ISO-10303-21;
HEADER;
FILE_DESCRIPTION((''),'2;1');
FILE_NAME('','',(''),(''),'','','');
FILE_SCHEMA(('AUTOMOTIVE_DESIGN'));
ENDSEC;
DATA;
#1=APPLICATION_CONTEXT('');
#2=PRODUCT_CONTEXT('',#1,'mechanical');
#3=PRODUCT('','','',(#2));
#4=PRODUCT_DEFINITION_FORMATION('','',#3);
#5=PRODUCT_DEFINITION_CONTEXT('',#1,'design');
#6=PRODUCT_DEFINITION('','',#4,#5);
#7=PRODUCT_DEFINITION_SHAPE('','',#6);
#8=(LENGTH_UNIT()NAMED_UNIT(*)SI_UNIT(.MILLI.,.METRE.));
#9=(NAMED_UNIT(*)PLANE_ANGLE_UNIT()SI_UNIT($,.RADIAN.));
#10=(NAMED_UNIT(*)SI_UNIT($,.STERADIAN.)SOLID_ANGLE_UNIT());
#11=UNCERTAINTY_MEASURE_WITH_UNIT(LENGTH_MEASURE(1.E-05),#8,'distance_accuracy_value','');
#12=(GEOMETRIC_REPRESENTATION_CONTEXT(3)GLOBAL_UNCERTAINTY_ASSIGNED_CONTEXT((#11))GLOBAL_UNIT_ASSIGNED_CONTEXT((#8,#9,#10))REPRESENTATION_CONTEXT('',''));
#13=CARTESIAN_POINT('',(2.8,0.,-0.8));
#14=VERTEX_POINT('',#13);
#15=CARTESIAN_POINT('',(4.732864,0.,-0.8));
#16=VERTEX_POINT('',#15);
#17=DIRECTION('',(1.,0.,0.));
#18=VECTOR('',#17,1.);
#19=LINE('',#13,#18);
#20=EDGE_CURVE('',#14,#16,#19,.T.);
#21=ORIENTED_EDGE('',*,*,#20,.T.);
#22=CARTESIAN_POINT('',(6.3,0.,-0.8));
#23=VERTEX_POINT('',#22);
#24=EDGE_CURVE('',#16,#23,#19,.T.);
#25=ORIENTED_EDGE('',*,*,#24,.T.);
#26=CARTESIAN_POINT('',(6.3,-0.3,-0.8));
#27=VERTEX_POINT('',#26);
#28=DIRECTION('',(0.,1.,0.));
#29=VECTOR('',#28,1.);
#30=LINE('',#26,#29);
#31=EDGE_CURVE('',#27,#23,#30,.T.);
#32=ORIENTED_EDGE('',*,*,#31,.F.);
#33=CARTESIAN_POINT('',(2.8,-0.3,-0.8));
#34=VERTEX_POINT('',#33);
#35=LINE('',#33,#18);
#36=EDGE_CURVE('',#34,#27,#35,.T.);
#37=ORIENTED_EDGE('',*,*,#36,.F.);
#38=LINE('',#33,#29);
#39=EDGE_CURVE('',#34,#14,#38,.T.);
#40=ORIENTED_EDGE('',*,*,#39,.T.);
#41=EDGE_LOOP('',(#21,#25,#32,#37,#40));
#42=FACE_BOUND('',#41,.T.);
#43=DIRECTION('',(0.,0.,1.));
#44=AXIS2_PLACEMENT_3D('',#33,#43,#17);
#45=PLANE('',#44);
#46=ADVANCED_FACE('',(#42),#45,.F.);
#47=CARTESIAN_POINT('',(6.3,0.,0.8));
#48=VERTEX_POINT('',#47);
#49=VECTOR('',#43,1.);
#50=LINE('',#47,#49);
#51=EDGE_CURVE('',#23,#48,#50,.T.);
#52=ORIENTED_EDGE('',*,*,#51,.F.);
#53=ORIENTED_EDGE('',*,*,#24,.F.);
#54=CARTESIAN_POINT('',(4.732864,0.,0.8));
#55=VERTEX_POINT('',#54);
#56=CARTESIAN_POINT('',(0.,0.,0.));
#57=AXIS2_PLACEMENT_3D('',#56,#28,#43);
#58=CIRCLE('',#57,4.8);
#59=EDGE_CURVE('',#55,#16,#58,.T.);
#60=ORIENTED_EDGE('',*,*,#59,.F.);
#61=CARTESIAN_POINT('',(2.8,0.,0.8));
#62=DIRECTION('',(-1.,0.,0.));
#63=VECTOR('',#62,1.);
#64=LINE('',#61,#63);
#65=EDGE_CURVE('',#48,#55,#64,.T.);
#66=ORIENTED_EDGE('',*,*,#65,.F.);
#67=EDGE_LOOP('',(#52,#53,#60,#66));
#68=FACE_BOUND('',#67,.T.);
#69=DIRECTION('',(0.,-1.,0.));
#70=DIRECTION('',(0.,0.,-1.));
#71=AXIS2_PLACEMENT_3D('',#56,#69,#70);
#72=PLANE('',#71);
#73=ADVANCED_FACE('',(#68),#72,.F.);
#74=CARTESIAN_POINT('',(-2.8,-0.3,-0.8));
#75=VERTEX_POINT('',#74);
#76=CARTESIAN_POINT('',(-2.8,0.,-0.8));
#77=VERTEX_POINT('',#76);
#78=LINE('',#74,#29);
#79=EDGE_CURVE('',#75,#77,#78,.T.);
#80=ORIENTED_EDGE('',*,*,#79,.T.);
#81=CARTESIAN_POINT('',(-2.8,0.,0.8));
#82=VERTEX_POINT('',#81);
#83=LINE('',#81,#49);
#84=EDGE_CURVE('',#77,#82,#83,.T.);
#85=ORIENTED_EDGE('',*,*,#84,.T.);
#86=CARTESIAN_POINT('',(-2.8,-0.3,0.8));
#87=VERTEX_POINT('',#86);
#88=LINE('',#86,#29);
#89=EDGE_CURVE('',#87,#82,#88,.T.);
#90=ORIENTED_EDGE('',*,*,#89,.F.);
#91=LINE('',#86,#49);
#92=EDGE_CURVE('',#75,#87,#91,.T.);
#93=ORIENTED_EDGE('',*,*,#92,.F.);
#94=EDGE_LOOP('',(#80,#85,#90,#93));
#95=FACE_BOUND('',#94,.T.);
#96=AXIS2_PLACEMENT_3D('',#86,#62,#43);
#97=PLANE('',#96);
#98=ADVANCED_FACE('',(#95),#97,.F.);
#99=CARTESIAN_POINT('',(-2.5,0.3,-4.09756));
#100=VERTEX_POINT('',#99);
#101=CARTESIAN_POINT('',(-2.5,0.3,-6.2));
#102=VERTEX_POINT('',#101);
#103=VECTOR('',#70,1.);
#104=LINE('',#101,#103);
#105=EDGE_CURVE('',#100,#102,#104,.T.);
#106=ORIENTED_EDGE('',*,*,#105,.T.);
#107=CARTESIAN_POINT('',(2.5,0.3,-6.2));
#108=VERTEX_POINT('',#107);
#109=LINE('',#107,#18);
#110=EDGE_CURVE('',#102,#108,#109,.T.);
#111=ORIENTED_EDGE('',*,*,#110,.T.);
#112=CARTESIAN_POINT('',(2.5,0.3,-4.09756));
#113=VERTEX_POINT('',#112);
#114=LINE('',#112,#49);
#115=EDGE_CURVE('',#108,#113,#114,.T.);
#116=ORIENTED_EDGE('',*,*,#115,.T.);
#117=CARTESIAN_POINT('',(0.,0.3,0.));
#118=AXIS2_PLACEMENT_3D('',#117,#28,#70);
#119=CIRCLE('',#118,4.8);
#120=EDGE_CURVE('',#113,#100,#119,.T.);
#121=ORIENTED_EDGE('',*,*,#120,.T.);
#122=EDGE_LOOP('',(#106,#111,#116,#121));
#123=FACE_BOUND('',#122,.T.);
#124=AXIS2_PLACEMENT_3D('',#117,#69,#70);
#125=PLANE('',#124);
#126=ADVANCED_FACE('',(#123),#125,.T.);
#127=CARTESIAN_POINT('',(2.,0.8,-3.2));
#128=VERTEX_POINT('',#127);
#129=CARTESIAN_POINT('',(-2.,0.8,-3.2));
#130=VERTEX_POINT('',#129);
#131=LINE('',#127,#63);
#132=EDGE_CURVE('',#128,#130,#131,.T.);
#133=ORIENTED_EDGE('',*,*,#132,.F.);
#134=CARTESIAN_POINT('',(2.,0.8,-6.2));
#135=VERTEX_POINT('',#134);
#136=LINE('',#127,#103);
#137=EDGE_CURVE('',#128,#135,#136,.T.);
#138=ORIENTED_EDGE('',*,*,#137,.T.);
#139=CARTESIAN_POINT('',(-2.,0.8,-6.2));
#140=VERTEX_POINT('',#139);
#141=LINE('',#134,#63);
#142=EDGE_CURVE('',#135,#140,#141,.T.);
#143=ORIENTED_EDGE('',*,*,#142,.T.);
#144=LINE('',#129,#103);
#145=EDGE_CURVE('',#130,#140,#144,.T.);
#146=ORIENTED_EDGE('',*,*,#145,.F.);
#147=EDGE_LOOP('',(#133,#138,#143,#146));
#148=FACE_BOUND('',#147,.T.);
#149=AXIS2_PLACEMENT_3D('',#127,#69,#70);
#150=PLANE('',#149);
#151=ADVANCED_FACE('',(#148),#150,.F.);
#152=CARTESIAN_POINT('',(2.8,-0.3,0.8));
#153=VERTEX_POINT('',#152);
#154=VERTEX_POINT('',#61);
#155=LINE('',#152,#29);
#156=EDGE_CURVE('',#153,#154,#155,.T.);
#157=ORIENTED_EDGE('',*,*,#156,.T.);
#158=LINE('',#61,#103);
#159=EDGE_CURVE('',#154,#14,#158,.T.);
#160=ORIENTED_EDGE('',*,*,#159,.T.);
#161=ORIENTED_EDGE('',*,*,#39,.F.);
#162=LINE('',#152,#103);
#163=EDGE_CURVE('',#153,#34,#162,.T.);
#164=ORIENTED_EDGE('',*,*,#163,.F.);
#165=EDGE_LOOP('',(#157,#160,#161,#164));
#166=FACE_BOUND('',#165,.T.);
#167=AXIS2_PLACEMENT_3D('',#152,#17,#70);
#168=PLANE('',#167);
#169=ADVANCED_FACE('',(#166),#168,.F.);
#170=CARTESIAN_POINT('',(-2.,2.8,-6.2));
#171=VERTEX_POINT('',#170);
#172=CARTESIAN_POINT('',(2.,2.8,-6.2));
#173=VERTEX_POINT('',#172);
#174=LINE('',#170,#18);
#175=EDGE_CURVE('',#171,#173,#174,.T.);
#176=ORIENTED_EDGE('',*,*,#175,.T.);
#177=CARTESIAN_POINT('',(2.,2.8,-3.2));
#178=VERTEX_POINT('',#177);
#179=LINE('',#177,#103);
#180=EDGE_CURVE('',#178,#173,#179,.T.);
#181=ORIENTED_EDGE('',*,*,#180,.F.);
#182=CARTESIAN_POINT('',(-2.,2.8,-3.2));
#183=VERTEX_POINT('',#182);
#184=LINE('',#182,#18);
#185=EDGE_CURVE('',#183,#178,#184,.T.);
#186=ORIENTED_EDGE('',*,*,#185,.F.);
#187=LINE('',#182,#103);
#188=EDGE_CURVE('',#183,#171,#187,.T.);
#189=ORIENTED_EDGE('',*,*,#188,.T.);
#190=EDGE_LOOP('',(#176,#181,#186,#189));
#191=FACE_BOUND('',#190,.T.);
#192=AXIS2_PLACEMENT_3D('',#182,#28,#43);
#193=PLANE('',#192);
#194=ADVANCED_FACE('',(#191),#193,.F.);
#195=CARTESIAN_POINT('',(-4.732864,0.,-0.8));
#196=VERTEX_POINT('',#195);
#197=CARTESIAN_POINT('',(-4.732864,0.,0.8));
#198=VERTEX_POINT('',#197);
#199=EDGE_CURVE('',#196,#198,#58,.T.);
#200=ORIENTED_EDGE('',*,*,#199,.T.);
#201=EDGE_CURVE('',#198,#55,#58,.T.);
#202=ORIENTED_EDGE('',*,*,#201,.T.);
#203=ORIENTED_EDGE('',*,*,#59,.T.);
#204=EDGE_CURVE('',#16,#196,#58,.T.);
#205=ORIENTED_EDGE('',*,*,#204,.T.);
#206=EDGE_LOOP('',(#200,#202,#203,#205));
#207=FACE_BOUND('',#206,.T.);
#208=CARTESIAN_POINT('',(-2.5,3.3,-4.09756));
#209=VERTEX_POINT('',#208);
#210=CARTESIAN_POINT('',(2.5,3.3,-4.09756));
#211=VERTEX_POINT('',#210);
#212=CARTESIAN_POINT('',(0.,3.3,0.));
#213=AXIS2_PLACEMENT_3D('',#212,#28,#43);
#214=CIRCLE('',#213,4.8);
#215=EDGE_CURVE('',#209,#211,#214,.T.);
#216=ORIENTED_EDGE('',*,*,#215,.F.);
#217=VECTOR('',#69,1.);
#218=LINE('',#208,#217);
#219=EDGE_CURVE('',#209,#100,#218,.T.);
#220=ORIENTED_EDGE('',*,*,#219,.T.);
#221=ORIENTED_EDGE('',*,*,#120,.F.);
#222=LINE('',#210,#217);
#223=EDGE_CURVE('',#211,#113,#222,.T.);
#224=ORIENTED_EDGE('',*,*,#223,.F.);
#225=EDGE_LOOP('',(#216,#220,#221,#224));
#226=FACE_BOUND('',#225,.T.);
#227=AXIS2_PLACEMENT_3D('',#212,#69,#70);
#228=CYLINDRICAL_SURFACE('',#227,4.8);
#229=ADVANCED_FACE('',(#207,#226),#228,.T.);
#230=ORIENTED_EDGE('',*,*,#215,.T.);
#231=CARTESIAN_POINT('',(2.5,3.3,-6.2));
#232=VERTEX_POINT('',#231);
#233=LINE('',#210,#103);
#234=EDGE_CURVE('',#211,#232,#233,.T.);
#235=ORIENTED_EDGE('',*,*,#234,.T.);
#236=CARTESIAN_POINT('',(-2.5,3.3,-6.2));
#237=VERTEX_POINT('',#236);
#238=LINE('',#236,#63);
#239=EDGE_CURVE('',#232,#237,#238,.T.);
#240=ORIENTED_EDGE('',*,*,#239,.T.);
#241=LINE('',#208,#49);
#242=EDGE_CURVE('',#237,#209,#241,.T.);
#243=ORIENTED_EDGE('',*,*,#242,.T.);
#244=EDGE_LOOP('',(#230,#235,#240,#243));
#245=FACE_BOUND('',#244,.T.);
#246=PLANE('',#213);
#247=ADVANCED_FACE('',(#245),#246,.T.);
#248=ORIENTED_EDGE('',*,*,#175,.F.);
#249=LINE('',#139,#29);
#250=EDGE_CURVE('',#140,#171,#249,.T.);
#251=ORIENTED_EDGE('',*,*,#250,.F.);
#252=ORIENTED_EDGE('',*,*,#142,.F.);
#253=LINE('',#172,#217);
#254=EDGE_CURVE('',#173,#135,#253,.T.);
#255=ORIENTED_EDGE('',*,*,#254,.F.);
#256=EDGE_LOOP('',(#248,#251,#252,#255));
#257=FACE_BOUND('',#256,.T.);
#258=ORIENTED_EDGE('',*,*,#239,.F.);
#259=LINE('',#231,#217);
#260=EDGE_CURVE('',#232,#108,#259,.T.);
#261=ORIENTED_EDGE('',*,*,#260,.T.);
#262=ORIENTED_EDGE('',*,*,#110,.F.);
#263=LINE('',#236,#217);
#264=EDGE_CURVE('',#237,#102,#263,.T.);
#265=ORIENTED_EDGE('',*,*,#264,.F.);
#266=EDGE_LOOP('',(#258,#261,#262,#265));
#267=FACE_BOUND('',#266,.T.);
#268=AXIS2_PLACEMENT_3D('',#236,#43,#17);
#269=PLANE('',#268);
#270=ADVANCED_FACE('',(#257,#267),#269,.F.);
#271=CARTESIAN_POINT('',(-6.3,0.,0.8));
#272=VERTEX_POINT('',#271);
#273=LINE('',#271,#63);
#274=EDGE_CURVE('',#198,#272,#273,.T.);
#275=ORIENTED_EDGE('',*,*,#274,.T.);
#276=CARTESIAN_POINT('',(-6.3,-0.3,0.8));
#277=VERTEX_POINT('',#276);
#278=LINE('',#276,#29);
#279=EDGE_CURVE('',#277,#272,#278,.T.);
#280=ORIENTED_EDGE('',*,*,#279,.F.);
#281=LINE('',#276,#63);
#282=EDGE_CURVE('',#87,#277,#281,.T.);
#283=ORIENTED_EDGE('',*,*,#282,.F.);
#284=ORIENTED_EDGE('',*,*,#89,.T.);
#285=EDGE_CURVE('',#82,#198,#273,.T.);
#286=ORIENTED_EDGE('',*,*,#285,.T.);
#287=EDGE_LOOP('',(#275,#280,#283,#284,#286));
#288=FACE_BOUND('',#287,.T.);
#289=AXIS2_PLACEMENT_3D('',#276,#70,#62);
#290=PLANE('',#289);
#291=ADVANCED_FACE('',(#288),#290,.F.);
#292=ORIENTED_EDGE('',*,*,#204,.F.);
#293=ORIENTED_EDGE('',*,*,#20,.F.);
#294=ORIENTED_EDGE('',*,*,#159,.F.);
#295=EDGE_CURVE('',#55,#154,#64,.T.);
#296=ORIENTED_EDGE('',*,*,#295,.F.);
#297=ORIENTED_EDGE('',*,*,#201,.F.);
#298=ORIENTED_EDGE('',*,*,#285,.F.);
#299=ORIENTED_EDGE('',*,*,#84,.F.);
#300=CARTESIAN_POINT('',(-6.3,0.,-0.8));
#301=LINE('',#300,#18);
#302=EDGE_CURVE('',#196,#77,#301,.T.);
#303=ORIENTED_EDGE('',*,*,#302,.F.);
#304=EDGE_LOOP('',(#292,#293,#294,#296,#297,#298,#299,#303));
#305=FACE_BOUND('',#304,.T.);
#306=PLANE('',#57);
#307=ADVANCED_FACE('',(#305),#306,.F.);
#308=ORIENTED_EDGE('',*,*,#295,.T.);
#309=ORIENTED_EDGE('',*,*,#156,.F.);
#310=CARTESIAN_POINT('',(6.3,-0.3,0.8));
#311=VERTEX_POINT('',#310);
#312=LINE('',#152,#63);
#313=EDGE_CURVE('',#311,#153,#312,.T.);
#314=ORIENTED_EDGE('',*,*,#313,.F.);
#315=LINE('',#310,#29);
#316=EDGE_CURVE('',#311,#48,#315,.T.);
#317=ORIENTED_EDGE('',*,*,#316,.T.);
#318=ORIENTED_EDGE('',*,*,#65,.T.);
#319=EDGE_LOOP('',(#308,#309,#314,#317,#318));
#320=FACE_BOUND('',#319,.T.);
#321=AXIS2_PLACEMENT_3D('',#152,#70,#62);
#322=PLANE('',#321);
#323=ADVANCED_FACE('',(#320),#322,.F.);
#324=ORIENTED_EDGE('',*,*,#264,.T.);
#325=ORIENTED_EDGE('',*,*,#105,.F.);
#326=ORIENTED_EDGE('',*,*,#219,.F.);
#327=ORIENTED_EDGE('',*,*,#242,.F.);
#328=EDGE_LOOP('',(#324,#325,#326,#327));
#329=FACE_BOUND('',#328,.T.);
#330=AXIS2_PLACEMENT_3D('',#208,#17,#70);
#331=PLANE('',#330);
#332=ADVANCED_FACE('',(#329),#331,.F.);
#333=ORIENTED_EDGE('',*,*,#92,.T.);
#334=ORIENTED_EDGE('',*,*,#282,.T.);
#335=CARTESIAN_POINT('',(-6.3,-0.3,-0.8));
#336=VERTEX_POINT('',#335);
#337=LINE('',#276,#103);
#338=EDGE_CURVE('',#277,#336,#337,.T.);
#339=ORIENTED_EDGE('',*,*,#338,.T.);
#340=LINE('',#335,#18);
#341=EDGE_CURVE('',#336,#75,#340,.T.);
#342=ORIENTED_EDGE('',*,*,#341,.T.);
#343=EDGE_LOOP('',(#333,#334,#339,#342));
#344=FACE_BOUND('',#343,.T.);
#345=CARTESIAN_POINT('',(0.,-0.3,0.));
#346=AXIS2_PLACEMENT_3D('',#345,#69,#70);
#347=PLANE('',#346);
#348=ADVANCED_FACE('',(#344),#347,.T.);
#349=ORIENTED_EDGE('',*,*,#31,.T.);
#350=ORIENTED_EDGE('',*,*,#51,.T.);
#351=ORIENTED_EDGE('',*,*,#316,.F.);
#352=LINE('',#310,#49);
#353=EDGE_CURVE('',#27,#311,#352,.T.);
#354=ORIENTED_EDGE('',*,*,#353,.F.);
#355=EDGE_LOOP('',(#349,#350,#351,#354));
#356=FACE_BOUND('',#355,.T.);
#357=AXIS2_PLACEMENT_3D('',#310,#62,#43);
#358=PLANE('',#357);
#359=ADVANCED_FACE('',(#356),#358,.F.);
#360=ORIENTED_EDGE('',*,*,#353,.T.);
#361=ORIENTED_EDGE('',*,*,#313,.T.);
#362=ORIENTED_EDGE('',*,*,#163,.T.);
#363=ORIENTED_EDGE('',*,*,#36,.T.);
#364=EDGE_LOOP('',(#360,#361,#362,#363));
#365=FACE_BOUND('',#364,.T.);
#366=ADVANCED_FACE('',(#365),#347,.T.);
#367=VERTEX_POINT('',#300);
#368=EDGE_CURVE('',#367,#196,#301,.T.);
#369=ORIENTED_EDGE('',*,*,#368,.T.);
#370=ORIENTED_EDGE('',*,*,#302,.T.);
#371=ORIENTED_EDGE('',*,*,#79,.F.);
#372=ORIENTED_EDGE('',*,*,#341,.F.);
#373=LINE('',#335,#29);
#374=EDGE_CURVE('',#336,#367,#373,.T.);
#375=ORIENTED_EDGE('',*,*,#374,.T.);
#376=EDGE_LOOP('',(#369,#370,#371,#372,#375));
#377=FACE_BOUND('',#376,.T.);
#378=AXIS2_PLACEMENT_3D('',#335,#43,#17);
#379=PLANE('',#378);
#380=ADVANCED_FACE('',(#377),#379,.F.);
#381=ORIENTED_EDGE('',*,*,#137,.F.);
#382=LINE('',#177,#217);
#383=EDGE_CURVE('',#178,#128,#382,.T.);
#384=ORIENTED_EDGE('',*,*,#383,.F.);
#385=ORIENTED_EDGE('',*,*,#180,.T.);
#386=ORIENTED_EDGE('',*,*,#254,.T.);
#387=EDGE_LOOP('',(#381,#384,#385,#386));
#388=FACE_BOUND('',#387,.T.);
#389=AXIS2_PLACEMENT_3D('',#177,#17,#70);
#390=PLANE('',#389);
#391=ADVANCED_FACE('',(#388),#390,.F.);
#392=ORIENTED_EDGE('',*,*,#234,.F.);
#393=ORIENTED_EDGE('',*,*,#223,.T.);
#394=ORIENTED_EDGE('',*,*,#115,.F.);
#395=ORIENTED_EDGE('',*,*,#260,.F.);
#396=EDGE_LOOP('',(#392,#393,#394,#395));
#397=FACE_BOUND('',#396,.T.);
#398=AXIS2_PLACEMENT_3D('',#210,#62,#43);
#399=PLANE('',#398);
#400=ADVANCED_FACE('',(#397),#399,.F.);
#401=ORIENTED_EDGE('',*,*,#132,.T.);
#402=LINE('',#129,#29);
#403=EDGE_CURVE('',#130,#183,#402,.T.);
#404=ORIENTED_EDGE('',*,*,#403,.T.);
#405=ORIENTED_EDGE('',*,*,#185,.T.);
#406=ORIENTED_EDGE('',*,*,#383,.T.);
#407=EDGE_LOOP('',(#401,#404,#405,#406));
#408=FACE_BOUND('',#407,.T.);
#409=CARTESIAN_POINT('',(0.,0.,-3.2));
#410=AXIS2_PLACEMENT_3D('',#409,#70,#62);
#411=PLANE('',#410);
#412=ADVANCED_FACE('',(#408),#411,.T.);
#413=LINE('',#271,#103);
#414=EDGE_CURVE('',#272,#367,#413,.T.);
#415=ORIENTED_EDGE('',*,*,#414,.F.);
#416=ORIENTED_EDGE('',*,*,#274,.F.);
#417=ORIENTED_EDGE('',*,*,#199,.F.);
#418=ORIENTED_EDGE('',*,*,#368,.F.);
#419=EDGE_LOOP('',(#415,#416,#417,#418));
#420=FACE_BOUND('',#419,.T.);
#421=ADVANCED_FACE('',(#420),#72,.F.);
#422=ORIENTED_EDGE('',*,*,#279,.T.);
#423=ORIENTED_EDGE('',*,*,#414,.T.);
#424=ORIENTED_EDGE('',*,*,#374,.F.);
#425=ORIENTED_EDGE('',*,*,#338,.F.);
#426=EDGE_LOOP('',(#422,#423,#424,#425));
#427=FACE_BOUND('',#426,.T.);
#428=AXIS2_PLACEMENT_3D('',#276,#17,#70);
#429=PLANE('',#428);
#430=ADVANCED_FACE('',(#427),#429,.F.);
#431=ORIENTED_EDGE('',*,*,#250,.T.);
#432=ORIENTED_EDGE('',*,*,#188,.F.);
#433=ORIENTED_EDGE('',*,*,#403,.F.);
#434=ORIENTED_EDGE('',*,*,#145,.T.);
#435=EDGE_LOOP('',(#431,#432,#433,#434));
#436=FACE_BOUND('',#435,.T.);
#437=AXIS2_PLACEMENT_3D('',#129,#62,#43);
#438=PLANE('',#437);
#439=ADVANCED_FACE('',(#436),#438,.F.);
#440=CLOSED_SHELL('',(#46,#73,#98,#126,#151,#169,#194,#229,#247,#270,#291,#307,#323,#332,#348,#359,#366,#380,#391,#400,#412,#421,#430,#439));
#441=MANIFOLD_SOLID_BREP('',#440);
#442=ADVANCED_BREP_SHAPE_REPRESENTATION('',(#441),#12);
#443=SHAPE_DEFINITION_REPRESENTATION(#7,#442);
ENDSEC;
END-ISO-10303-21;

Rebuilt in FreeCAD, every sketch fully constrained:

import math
import FreeCAD as App
import Part
import Sketcher
from FreeCAD import Vector
Q = App.Units.Quantity

doc = App.newDocument("Part")
body = doc.addObject("PartDesign::Body", "Body")

# Sketch on XZ plane
sketch1 = body.newObject("Sketcher::SketchObject", "Sketch")
sketch1.AttachmentSupport = (doc.getObject("XZ_Plane"), [""])
sketch1.MapMode = "FlatFace"
sketch1.addGeometry([
    Part.LineSegment(Vector(-2.5, -6.2, 0), Vector(-2.5, -4.1, 0)),
    Part.ArcOfCircle(Part.Circle(Vector(0, 0, 0), Vector(0, 0, 1), 4.8), math.radians(-59), math.radians(239)),
    Part.LineSegment(Vector(2.5, -4.1, 0), Vector(2.5, -6.2, 0)),
    Part.LineSegment(Vector(2.5, -6.2, 0), Vector(-2.5, -6.2, 0)),
], False)
sketch1.addConstraint([
    Sketcher.Constraint("Coincident", 0, 2, 1, 2),
    Sketcher.Constraint("Coincident", 1, 1, 2, 1),
    Sketcher.Constraint("Coincident", 2, 2, 3, 1),
    Sketcher.Constraint("Coincident", 3, 2, 0, 1),
    Sketcher.Constraint("Vertical", 0),
    Sketcher.Constraint("Vertical", 2),
    Sketcher.Constraint("Horizontal", 3),
    Sketcher.Constraint("Coincident", 1, 3, -1, 1),
    Sketcher.Constraint("Horizontal", 0, 2, 1, 1),
    Sketcher.Constraint("Radius", 1, Q("4.8 mm")),
    Sketcher.Constraint("DistanceX", 3, 2, 3, 1, Q("5 mm")),
    Sketcher.Constraint("DistanceY", 2, 2, -1, 1, Q("6.2 mm")),
])
pad1 = body.newObject("PartDesign::Pad", "Pad")
pad1.Profile = sketch1
pad1.Length = 3.3
pad1.Reversed = True

# Sketch on XZ plane
sketch2 = body.newObject("Sketcher::SketchObject", "Sketch001")
sketch2.AttachmentSupport = (doc.getObject("XZ_Plane"), [""])
sketch2.MapMode = "FlatFace"
sketch2.addGeometry([
    Part.LineSegment(Vector(-6.3, 0.8, 0), Vector(-6.3, -0.8, 0)),  # 0
    Part.LineSegment(Vector(-6.3, -0.8, 0), Vector(-2.8, -0.8, 0)),  # 1
    Part.LineSegment(Vector(-2.8, -0.8, 0), Vector(-2.8, 0.8, 0)),  # 2
    Part.LineSegment(Vector(-2.8, 0.8, 0), Vector(-6.3, 0.8, 0)),  # 3
    Part.LineSegment(Vector(2.8, 0.8, 0), Vector(2.8, -0.8, 0)),  # 4
    Part.LineSegment(Vector(2.8, -0.8, 0), Vector(6.3, -0.8, 0)),  # 5
    Part.LineSegment(Vector(6.3, -0.8, 0), Vector(6.3, 0.8, 0)),  # 6
    Part.LineSegment(Vector(6.3, 0.8, 0), Vector(2.8, 0.8, 0)),  # 7
], False)
sketch2.addConstraint([
    Sketcher.Constraint("Coincident", 0, 2, 1, 1),
    Sketcher.Constraint("Coincident", 1, 2, 2, 1),
    Sketcher.Constraint("Coincident", 2, 2, 3, 1),
    Sketcher.Constraint("Coincident", 3, 2, 0, 1),
    Sketcher.Constraint("Coincident", 4, 2, 5, 1),
    Sketcher.Constraint("Coincident", 5, 2, 6, 1),
    Sketcher.Constraint("Coincident", 6, 2, 7, 1),
    Sketcher.Constraint("Coincident", 7, 2, 4, 1),
    Sketcher.Constraint("Vertical", 0),
    Sketcher.Constraint("Horizontal", 1),
    Sketcher.Constraint("Vertical", 2),
    Sketcher.Constraint("Horizontal", 3),
    Sketcher.Constraint("Vertical", 4),
    Sketcher.Constraint("Horizontal", 5),
    Sketcher.Constraint("Vertical", 6),
    Sketcher.Constraint("Horizontal", 7),
    Sketcher.Constraint("Symmetric", 2, 2, 4, 2, -1, 1),
    Sketcher.Constraint("Symmetric", 0, 2, 6, 2, -1, 1),
    Sketcher.Constraint("Horizontal", 1, 2, 4, 2),
    Sketcher.Constraint("DistanceX", 1, 1, 1, 2, Q("3.5 mm")),
    Sketcher.Constraint("DistanceY", 0, 2, 0, 1, Q("1.6 mm")),
    Sketcher.Constraint("DistanceX", 0, 2, -1, 1, Q("6.3 mm")),
])
pad2 = body.newObject("PartDesign::Pad", "Pad001")
pad2.Profile = sketch2
pad2.Length = 0.3

# Sketch on XZ plane
sketch3 = body.newObject("Sketcher::SketchObject", "Sketch002")
sketch3.AttachmentSupport = (doc.getObject("XZ_Plane"), [""])
sketch3.MapMode = "FlatFace"
sketch3.addGeometry([
    Part.LineSegment(Vector(2.5, -6.2, 0), Vector(2.5, -4.1, 0)),
    Part.ArcOfCircle(Part.Circle(Vector(0, 0, 0), Vector(0, 0, 1), 4.8), math.radians(-121), math.radians(-59)),
    Part.LineSegment(Vector(-2.5, -4.1, 0), Vector(-2.5, -6.2, 0)),
    Part.LineSegment(Vector(-2.5, -6.2, 0), Vector(2.5, -6.2, 0)),
], False)
sketch3.addConstraint([
    Sketcher.Constraint("Coincident", 0, 2, 1, 2),
    Sketcher.Constraint("Coincident", 1, 1, 2, 1),
    Sketcher.Constraint("Coincident", 2, 2, 3, 1),
    Sketcher.Constraint("Coincident", 3, 2, 0, 1),
    Sketcher.Constraint("Vertical", 0),
    Sketcher.Constraint("Vertical", 2),
    Sketcher.Constraint("Horizontal", 3),
    Sketcher.Constraint("Coincident", 1, 3, -1, 1),
    Sketcher.Constraint("Horizontal", 0, 2, 1, 1),
    Sketcher.Constraint("Radius", 1, Q("4.8 mm")),
    Sketcher.Constraint("DistanceX", 3, 1, 3, 2, Q("5 mm")),
    Sketcher.Constraint("DistanceY", 2, 2, -1, 1, Q("6.2 mm")),
])
pocket1 = body.newObject("PartDesign::Pocket", "Pocket")
pocket1.Profile = sketch3
pocket1.Length = 0.3

# Sketch on XY plane
sketch4 = body.newObject("Sketcher::SketchObject", "Sketch003")
sketch4.AttachmentSupport = (doc.getObject("XY_Plane"), [""])
sketch4.MapMode = "FlatFace"
sketch4.AttachmentOffset = App.Placement(Vector(0, 0, -6.2), App.Rotation())
sketch4.addGeometry([
    Part.LineSegment(Vector(2, 2.8, 0), Vector(2, 0.8, 0)),
    Part.LineSegment(Vector(2, 0.8, 0), Vector(-2, 0.8, 0)),
    Part.LineSegment(Vector(-2, 0.8, 0), Vector(-2, 2.8, 0)),
    Part.LineSegment(Vector(-2, 2.8, 0), Vector(2, 2.8, 0)),
], False)
sketch4.addConstraint([
    Sketcher.Constraint("Coincident", 0, 2, 1, 1),
    Sketcher.Constraint("Coincident", 1, 2, 2, 1),
    Sketcher.Constraint("Coincident", 2, 2, 3, 1),
    Sketcher.Constraint("Coincident", 3, 2, 0, 1),
    Sketcher.Constraint("Vertical", 0),
    Sketcher.Constraint("Horizontal", 1),
    Sketcher.Constraint("Vertical", 2),
    Sketcher.Constraint("Horizontal", 3),
    Sketcher.Constraint("DistanceX", 1, 2, 1, 1, Q("4 mm")),
    Sketcher.Constraint("DistanceY", 0, 2, 0, 1, Q("2 mm")),
    Sketcher.Constraint("DistanceX", -1, 1, 0, 2, Q("2 mm")),
    Sketcher.Constraint("DistanceY", -1, 1, 0, 2, Q("0.8 mm")),
])
pocket2 = body.newObject("PartDesign::Pocket", "Pocket001")
pocket2.Profile = sketch4
pocket2.Length = 3
pocket2.Reversed = True

doc.recompute()
